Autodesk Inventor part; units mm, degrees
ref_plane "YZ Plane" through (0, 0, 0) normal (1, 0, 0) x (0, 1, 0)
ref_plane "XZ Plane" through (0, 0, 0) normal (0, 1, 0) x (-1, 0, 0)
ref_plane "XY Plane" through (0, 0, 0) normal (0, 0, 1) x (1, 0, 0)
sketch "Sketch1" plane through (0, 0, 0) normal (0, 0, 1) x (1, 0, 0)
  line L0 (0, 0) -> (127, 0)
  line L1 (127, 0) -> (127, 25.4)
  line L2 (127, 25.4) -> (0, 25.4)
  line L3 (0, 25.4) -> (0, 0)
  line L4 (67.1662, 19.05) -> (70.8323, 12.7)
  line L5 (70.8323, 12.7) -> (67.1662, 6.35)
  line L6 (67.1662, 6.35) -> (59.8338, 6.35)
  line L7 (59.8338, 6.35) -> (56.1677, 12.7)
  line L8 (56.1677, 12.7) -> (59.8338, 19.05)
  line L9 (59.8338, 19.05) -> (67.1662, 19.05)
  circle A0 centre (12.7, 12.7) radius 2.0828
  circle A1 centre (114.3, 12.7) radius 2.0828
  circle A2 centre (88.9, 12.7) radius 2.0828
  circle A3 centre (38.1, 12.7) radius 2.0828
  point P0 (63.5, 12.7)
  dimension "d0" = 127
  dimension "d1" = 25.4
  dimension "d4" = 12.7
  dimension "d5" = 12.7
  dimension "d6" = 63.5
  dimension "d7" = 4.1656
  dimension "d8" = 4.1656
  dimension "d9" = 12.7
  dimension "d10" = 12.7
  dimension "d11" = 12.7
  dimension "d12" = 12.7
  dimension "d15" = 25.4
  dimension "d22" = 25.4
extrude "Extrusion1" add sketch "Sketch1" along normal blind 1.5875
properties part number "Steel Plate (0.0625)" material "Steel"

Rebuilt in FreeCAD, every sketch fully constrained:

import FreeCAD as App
import Part
import Sketcher

V = App.Vector
Q = App.Units.Quantity


def add_polygon(sketch, points):
    """Adds a closed chain of lines whose ends are joined by coincident constraints."""
    first, n = sketch.GeometryCount, len(points)
    for a, b in zip(points, points[1:] + points[:1]):
        sketch.addGeometry(Part.LineSegment(App.Vector(*a, 0), App.Vector(*b, 0)), False)
    for i in range(n):
        sketch.addConstraint(Sketcher.Constraint("Coincident", first + i, 2, first + (i + 1) % n, 1))

doc = App.newDocument("Part")
body = doc.addObject("PartDesign::Body", "Body")

sketch1 = doc.addObject("Sketcher::SketchObject", "Sketch")
body.addObject(sketch1)
sketch1.AttachmentSupport = (doc.XY_Plane, [""])
sketch1.MapMode = "FlatFace"
add_polygon(sketch1, [(0, 25.4), (0, 0), (127, 0), (127, 25.4)])
sketch1.addGeometry(Part.Circle(V(12.7, 12.7, 0), V(0, 0, 1), 2.0828), False)
sketch1.addGeometry(Part.Circle(V(38.1, 12.7, 0), V(0, 0, 1), 2.0828), False)
add_polygon(sketch1, [(59.8338, 19.05), (67.1662, 19.05), (70.8323, 12.7), (67.1662, 6.35), (59.8338, 6.35), (56.1677, 12.7)])
sketch1.addGeometry(Part.Circle(V(88.9, 12.7, 0), V(0, 0, 1), 2.0828), False)
sketch1.addGeometry(Part.Circle(V(114.3, 12.7, 0), V(0, 0, 1), 2.0828), False)
sketch1.addConstraint([
    Sketcher.Constraint("Vertical", 0),
    Sketcher.Constraint("Horizontal", 1),
    Sketcher.Constraint("Vertical", 2),
    Sketcher.Constraint("Horizontal", 3),
    Sketcher.Constraint("Horizontal", 6),
    Sketcher.Constraint("Horizontal", 9),
    Sketcher.Constraint("Coincident", 0, 2, -1, 1),
    Sketcher.Constraint("Equal", 4, 5),
    Sketcher.Constraint("Equal", 5, 12),
    Sketcher.Constraint("Equal", 12, 13),
    Sketcher.Constraint("Parallel", 7, 10),
    Sketcher.Constraint("Parallel", 8, 11),
    Sketcher.Constraint("Horizontal", 4, 3, 5, 3),
    Sketcher.Constraint("Horizontal", 5, 3, 12, 3),
    Sketcher.Constraint("Horizontal", 12, 3, 13, 3),
    Sketcher.Constraint("Horizontal", 13, 3, 7, 2),
    Sketcher.Constraint("Horizontal", 7, 2, 10, 2),
    Sketcher.Constraint("Vertical", 6, 2, 8, 2),
    Sketcher.Constraint("Vertical", 9, 2, 11, 2),
    Sketcher.Constraint("DistanceX", 1, 1, 1, 2, Q("5 in")),
    Sketcher.Constraint("DistanceY", 0, 2, 0, 1, Q("1 in")),
    Sketcher.Constraint("Diameter", 4, Q("0.164 in")),
    Sketcher.Constraint("DistanceX", 4, 3, 5, 3, Q("1 in")),
    Sketcher.Constraint("DistanceX", 12, 3, 13, 3, Q("1 in")),
    Sketcher.Constraint("DistanceX", -1, 1, 4, 3, Q("0.5 in")),
    Sketcher.Constraint("DistanceY", -1, 1, 4, 3, Q("0.5 in")),
    Sketcher.Constraint("DistanceX", 13, 3, 1, 2, Q("0.5 in")),
    Sketcher.Constraint("DistanceY", 8, 2, 6, 2, Q("0.5 in")),
    Sketcher.Constraint("Angle", 7, Q("-60.0005 deg")),
    Sketcher.Constraint("DistanceX", 9, 2, 7, 2, Q("0.433 in")),
    Sketcher.Constraint("DistanceX", -1, 1, 6, 2, 67.1662),
])
pad1 = doc.addObject("PartDesign::Pad", "Pad")
body.addObject(pad1)
pad1.Profile = sketch1
pad1.Length = Q("0.0625 in")

doc.recompute()
